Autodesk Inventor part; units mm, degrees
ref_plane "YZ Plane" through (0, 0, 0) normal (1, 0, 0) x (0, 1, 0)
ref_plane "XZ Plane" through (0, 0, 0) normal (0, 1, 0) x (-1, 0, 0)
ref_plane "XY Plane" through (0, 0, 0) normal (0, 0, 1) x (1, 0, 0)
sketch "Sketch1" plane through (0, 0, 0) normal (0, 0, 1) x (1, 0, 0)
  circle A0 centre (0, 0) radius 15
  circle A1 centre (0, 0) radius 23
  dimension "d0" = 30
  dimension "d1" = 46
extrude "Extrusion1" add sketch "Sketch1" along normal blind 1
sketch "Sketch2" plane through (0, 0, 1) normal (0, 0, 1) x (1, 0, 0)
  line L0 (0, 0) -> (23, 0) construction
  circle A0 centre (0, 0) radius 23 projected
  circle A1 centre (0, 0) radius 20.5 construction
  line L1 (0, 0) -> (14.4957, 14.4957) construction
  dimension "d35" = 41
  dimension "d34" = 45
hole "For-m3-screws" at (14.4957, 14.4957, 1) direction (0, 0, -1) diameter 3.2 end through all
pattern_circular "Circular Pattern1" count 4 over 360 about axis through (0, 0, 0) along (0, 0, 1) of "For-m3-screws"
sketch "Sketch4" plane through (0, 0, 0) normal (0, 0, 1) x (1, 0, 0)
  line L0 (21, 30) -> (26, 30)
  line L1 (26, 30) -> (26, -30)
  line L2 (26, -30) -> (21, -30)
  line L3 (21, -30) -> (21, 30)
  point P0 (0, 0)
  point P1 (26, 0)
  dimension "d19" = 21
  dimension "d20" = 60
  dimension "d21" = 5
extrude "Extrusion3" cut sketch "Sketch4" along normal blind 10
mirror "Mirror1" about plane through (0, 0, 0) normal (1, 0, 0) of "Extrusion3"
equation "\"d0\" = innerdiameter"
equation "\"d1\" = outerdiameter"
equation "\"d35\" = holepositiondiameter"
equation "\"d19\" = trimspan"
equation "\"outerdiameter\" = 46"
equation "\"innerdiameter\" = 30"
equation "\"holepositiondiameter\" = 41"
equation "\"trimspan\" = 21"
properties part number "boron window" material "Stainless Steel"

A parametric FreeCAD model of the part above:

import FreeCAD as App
import Part
import Sketcher

V = App.Vector
Q = App.Units.Quantity

doc = App.newDocument("Part")
body = doc.addObject("PartDesign::Body", "Body")

sketch1 = body.newObject("Sketcher::SketchObject", "Sketch")
sketch1.AttachmentSupport = (doc.getObject("XY_Plane"), [""])
sketch1.MapMode = "FlatFace"
sketch1.addGeometry(Part.Circle(V(0, 0, 0), V(0, 0, 1), 23), False)
sketch1.addGeometry(Part.Circle(V(0, 0, 0), V(0, 0, 1), 15), False)
sketch1.addConstraint(Sketcher.Constraint("Coincident", 0, 3, -1, 1))
sketch1.addConstraint(Sketcher.Constraint("Coincident", 1, 3, -1, 1))
sketch1.addConstraint(Sketcher.Constraint("Diameter", 0, Q("46 mm")))
sketch1.addConstraint(Sketcher.Constraint("Diameter", 1, Q("30 mm")))
pad1 = body.newObject("PartDesign::Pad", "Pad")
pad1.Profile = sketch1
pad1.Length = 1

sketch2 = body.newObject("Sketcher::SketchObject", "Sketch001")
sketch2.AttachmentSupport = (doc.getObject("XY_Plane"), [""])
sketch2.MapMode = "FlatFace"
sketch2.AttachmentOffset = App.Placement(V(0, 0, 1), App.Rotation())
sketch2.addGeometry(Part.Circle(V(14.5, 14.5, 0), V(0, 0, 1), 1.6), False)
sketch2.addConstraint(Sketcher.Constraint("Diameter", 0, Q("3.2 mm")))
sketch2.addConstraint(Sketcher.Constraint("DistanceX", -1, 1, 0, 3, Q("14.4957 mm")))
sketch2.addConstraint(Sketcher.Constraint("DistanceY", -1, 1, 0, 3, Q("14.4957 mm")))
doc.recompute()
hole = body.newObject("PartDesign::Hole", "Hole")
hole.Profile = sketch2
hole.ThreadType = "None"
hole.Diameter = 3.2
hole.DepthType = "ThroughAll"
doc.recompute()

polarpattern = body.newObject("PartDesign::PolarPattern", "PolarPattern")
polarpattern.Originals = [hole]
polarpattern.Axis = (doc.getObject("Z_Axis"), [""])
polarpattern.Angle = 360
polarpattern.Occurrences = 4
body.Tip = polarpattern

sketch3 = body.newObject("Sketcher::SketchObject", "Sketch002")
sketch3.AttachmentSupport = (doc.getObject("XY_Plane"), [""])
sketch3.MapMode = "FlatFace"
sketch3.addGeometry(Part.LineSegment(V(26, 30, 0), V(21, 30, 0)), False)
sketch3.addGeometry(Part.LineSegment(V(21, 30, 0), V(21, -30, 0)), False)
sketch3.addGeometry(Part.LineSegment(V(21, -30, 0), V(26, -30, 0)), False)
sketch3.addGeometry(Part.LineSegment(V(26, -30, 0), V(26, 30, 0)), False)
sketch3.addConstraint(Sketcher.Constraint("Coincident", 0, 2, 1, 1))
sketch3.addConstraint(Sketcher.Constraint("Coincident", 1, 2, 2, 1))
sketch3.addConstraint(Sketcher.Constraint("Coincident", 2, 2, 3, 1))
sketch3.addConstraint(Sketcher.Constraint("Coincident", 3, 2, 0, 1))
sketch3.addConstraint(Sketcher.Constraint("Horizontal", 0))
sketch3.addConstraint(Sketcher.Constraint("Vertical", 1))
sketch3.addConstraint(Sketcher.Constraint("Horizontal", 2))
sketch3.addConstraint(Sketcher.Constraint("Vertical", 3))
sketch3.addConstraint(Sketcher.Constraint("DistanceX", 0, 2, 0, 1, Q("5 mm")))
sketch3.addConstraint(Sketcher.Constraint("DistanceY", 1, 2, 1, 1, Q("60 mm")))
sketch3.addConstraint(Sketcher.Constraint("DistanceX", -1, 1, 0, 2, Q("21 mm")))
sketch3.addConstraint(Sketcher.Constraint("DistanceY", -1, 1, 0, 2, Q("30 mm")))
pocket1 = body.newObject("PartDesign::Pocket", "Pocket")
pocket1.Profile = sketch3
pocket1.Length = 10
pocket1.Reversed = True
doc.recompute()

mirrored = body.newObject("PartDesign::Mirrored", "Mirrored")
mirrored.Originals = [pocket1]
mirrored.MirrorPlane = (doc.getObject("YZ_Plane"), [""])
body.Tip = mirrored

doc.recompute()
